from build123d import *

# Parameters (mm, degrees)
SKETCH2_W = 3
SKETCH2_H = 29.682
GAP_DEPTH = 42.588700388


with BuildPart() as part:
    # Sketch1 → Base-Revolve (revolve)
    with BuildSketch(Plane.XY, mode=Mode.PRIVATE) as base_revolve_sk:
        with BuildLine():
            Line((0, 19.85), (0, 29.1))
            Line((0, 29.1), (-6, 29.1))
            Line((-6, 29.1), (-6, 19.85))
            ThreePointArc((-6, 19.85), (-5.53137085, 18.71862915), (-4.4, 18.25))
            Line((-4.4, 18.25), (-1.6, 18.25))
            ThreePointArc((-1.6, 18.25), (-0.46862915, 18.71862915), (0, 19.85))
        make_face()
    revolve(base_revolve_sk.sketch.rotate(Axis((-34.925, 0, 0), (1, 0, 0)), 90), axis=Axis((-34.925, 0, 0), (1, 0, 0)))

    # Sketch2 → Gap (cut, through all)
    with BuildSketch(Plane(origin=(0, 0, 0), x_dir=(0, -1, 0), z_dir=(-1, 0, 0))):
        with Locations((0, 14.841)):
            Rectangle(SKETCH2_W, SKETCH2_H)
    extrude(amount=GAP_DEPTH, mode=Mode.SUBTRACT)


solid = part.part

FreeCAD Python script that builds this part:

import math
import FreeCAD as App
import Part
import Sketcher

doc = App.newDocument("Part")
params = doc.addObject("Spreadsheet::Sheet", "Params")
for row, (alias, value) in enumerate([
    ("sketch1_radius", "1.6 mm"),
    ("sketch1_width", "6 mm"),
    ("sketch1_height", "9.25 mm"),
    ("revolution_angle", "360 deg"),
    ("sketch2_width", "3 mm"),
], start=1):
    params.set(f"A{row}", alias)
    params.set(f"B{row}", "=" + value)
    params.setAlias(f"B{row}", alias)

body = doc.addObject("PartDesign::Body", "Body")

# Sketch on XY plane
sketch1 = doc.addObject("Sketcher::SketchObject", "Sketch")
body.addObject(sketch1)
sketch1.AttachmentSupport = (doc.XY_Plane, [""])
sketch1.MapMode = "FlatFace"
sketch1.addGeometry([
    Part.LineSegment(App.Vector(0, 19.85, 0), App.Vector(0, 29.1, 0)),  # 0
    Part.LineSegment(App.Vector(0, 29.1, 0), App.Vector(-6, 29.1, 0)),  # 1
    Part.LineSegment(App.Vector(-6, 29.1, 0), App.Vector(-6, 19.85, 0)),  # 2
    Part.ArcOfCircle(Part.Circle(App.Vector(-4.4, 19.85, 0), App.Vector(0, 0, 1), 1.6), math.radians(180), math.radians(270)),  # 3
    Part.LineSegment(App.Vector(-4.4, 18.25, 0), App.Vector(-1.6, 18.25, 0)),  # 4
    Part.ArcOfCircle(Part.Circle(App.Vector(-1.6, 19.85, 0), App.Vector(0, 0, 1), 1.6), math.radians(-90), math.radians(0)),  # 5
], False)
sketch1.addConstraint([
    Sketcher.Constraint("Coincident", 0, 2, 1, 1),
    Sketcher.Constraint("Coincident", 1, 2, 2, 1),
    Sketcher.Constraint("Tangent", 2, 2, 3, 1),
    Sketcher.Constraint("Tangent", 3, 2, 4, 1),
    Sketcher.Constraint("Tangent", 4, 2, 5, 1),
    Sketcher.Constraint("Tangent", 5, 2, 0, 1),
    Sketcher.Constraint("Vertical", 0),
    Sketcher.Constraint("Horizontal", 1),
    Sketcher.Constraint("Vertical", 2),
    Sketcher.Constraint("Horizontal", 4),
    Sketcher.Constraint("Equal", 3, 5),
    Sketcher.Constraint("PointOnObject", 0, 2, -2),
    Sketcher.Constraint("Radius", 3, 1.6),
    Sketcher.Constraint("DistanceX", 1, 2, 1, 1, 6.0),
    Sketcher.Constraint("DistanceY", 0, 1, 0, 2, 9.25),
    Sketcher.Constraint("DistanceY", -1, 1, 0, 2, 29.1),
])
sketch1.setExpression("Constraints[12]", "Params.sketch1_radius")
sketch1.setExpression("Constraints[13]", "Params.sketch1_width")
sketch1.setExpression("Constraints[14]", "Params.sketch1_height")
revolution = doc.addObject("PartDesign::Revolution", "Revolution")
body.addObject(revolution)
revolution.Profile = sketch1
revolution.ReferenceAxis = (sketch1, ["H_Axis"])
revolution.setExpression("Angle", "Params.revolution_angle")

# Sketch on YZ plane
sketch2 = doc.addObject("Sketcher::SketchObject", "Sketch001")
body.addObject(sketch2)
sketch2.AttachmentSupport = (doc.YZ_Plane, [""])
sketch2.MapMode = "FlatFace"
sketch2.addGeometry([
    Part.LineSegment(App.Vector(1.5, 29.682, 0), App.Vector(1.5, 0, 0)),
    Part.LineSegment(App.Vector(1.5, 0, 0), App.Vector(-1.5, 0, 0)),
    Part.LineSegment(App.Vector(-1.5, 0, 0), App.Vector(-1.5, 29.682, 0)),
    Part.LineSegment(App.Vector(-1.5, 29.682, 0), App.Vector(1.5, 29.682, 0)),
], False)
sketch2.addConstraint([
    Sketcher.Constraint("Coincident", 0, 2, 1, 1),
    Sketcher.Constraint("Coincident", 1, 2, 2, 1),
    Sketcher.Constraint("Coincident", 2, 2, 3, 1),
    Sketcher.Constraint("Coincident", 3, 2, 0, 1),
    Sketcher.Constraint("Vertical", 0),
    Sketcher.Constraint("Horizontal", 1),
    Sketcher.Constraint("Vertical", 2),
    Sketcher.Constraint("Horizontal", 3),
    Sketcher.Constraint("Symmetric", 0, 2, 1, 2, -1, 1),
    Sketcher.Constraint("DistanceX", 1, 2, 1, 1, 3.0),
    Sketcher.Constraint("DistanceY", 0, 2, 0, 1, 29.682),
])
sketch2.setExpression("Constraints[9]", "Params.sketch2_width")
pocket1 = doc.addObject("PartDesign::Pocket", "Pocket")
body.addObject(pocket1)
pocket1.Profile = sketch2
pocket1.Type = "ThroughAll"

doc.recompute()
